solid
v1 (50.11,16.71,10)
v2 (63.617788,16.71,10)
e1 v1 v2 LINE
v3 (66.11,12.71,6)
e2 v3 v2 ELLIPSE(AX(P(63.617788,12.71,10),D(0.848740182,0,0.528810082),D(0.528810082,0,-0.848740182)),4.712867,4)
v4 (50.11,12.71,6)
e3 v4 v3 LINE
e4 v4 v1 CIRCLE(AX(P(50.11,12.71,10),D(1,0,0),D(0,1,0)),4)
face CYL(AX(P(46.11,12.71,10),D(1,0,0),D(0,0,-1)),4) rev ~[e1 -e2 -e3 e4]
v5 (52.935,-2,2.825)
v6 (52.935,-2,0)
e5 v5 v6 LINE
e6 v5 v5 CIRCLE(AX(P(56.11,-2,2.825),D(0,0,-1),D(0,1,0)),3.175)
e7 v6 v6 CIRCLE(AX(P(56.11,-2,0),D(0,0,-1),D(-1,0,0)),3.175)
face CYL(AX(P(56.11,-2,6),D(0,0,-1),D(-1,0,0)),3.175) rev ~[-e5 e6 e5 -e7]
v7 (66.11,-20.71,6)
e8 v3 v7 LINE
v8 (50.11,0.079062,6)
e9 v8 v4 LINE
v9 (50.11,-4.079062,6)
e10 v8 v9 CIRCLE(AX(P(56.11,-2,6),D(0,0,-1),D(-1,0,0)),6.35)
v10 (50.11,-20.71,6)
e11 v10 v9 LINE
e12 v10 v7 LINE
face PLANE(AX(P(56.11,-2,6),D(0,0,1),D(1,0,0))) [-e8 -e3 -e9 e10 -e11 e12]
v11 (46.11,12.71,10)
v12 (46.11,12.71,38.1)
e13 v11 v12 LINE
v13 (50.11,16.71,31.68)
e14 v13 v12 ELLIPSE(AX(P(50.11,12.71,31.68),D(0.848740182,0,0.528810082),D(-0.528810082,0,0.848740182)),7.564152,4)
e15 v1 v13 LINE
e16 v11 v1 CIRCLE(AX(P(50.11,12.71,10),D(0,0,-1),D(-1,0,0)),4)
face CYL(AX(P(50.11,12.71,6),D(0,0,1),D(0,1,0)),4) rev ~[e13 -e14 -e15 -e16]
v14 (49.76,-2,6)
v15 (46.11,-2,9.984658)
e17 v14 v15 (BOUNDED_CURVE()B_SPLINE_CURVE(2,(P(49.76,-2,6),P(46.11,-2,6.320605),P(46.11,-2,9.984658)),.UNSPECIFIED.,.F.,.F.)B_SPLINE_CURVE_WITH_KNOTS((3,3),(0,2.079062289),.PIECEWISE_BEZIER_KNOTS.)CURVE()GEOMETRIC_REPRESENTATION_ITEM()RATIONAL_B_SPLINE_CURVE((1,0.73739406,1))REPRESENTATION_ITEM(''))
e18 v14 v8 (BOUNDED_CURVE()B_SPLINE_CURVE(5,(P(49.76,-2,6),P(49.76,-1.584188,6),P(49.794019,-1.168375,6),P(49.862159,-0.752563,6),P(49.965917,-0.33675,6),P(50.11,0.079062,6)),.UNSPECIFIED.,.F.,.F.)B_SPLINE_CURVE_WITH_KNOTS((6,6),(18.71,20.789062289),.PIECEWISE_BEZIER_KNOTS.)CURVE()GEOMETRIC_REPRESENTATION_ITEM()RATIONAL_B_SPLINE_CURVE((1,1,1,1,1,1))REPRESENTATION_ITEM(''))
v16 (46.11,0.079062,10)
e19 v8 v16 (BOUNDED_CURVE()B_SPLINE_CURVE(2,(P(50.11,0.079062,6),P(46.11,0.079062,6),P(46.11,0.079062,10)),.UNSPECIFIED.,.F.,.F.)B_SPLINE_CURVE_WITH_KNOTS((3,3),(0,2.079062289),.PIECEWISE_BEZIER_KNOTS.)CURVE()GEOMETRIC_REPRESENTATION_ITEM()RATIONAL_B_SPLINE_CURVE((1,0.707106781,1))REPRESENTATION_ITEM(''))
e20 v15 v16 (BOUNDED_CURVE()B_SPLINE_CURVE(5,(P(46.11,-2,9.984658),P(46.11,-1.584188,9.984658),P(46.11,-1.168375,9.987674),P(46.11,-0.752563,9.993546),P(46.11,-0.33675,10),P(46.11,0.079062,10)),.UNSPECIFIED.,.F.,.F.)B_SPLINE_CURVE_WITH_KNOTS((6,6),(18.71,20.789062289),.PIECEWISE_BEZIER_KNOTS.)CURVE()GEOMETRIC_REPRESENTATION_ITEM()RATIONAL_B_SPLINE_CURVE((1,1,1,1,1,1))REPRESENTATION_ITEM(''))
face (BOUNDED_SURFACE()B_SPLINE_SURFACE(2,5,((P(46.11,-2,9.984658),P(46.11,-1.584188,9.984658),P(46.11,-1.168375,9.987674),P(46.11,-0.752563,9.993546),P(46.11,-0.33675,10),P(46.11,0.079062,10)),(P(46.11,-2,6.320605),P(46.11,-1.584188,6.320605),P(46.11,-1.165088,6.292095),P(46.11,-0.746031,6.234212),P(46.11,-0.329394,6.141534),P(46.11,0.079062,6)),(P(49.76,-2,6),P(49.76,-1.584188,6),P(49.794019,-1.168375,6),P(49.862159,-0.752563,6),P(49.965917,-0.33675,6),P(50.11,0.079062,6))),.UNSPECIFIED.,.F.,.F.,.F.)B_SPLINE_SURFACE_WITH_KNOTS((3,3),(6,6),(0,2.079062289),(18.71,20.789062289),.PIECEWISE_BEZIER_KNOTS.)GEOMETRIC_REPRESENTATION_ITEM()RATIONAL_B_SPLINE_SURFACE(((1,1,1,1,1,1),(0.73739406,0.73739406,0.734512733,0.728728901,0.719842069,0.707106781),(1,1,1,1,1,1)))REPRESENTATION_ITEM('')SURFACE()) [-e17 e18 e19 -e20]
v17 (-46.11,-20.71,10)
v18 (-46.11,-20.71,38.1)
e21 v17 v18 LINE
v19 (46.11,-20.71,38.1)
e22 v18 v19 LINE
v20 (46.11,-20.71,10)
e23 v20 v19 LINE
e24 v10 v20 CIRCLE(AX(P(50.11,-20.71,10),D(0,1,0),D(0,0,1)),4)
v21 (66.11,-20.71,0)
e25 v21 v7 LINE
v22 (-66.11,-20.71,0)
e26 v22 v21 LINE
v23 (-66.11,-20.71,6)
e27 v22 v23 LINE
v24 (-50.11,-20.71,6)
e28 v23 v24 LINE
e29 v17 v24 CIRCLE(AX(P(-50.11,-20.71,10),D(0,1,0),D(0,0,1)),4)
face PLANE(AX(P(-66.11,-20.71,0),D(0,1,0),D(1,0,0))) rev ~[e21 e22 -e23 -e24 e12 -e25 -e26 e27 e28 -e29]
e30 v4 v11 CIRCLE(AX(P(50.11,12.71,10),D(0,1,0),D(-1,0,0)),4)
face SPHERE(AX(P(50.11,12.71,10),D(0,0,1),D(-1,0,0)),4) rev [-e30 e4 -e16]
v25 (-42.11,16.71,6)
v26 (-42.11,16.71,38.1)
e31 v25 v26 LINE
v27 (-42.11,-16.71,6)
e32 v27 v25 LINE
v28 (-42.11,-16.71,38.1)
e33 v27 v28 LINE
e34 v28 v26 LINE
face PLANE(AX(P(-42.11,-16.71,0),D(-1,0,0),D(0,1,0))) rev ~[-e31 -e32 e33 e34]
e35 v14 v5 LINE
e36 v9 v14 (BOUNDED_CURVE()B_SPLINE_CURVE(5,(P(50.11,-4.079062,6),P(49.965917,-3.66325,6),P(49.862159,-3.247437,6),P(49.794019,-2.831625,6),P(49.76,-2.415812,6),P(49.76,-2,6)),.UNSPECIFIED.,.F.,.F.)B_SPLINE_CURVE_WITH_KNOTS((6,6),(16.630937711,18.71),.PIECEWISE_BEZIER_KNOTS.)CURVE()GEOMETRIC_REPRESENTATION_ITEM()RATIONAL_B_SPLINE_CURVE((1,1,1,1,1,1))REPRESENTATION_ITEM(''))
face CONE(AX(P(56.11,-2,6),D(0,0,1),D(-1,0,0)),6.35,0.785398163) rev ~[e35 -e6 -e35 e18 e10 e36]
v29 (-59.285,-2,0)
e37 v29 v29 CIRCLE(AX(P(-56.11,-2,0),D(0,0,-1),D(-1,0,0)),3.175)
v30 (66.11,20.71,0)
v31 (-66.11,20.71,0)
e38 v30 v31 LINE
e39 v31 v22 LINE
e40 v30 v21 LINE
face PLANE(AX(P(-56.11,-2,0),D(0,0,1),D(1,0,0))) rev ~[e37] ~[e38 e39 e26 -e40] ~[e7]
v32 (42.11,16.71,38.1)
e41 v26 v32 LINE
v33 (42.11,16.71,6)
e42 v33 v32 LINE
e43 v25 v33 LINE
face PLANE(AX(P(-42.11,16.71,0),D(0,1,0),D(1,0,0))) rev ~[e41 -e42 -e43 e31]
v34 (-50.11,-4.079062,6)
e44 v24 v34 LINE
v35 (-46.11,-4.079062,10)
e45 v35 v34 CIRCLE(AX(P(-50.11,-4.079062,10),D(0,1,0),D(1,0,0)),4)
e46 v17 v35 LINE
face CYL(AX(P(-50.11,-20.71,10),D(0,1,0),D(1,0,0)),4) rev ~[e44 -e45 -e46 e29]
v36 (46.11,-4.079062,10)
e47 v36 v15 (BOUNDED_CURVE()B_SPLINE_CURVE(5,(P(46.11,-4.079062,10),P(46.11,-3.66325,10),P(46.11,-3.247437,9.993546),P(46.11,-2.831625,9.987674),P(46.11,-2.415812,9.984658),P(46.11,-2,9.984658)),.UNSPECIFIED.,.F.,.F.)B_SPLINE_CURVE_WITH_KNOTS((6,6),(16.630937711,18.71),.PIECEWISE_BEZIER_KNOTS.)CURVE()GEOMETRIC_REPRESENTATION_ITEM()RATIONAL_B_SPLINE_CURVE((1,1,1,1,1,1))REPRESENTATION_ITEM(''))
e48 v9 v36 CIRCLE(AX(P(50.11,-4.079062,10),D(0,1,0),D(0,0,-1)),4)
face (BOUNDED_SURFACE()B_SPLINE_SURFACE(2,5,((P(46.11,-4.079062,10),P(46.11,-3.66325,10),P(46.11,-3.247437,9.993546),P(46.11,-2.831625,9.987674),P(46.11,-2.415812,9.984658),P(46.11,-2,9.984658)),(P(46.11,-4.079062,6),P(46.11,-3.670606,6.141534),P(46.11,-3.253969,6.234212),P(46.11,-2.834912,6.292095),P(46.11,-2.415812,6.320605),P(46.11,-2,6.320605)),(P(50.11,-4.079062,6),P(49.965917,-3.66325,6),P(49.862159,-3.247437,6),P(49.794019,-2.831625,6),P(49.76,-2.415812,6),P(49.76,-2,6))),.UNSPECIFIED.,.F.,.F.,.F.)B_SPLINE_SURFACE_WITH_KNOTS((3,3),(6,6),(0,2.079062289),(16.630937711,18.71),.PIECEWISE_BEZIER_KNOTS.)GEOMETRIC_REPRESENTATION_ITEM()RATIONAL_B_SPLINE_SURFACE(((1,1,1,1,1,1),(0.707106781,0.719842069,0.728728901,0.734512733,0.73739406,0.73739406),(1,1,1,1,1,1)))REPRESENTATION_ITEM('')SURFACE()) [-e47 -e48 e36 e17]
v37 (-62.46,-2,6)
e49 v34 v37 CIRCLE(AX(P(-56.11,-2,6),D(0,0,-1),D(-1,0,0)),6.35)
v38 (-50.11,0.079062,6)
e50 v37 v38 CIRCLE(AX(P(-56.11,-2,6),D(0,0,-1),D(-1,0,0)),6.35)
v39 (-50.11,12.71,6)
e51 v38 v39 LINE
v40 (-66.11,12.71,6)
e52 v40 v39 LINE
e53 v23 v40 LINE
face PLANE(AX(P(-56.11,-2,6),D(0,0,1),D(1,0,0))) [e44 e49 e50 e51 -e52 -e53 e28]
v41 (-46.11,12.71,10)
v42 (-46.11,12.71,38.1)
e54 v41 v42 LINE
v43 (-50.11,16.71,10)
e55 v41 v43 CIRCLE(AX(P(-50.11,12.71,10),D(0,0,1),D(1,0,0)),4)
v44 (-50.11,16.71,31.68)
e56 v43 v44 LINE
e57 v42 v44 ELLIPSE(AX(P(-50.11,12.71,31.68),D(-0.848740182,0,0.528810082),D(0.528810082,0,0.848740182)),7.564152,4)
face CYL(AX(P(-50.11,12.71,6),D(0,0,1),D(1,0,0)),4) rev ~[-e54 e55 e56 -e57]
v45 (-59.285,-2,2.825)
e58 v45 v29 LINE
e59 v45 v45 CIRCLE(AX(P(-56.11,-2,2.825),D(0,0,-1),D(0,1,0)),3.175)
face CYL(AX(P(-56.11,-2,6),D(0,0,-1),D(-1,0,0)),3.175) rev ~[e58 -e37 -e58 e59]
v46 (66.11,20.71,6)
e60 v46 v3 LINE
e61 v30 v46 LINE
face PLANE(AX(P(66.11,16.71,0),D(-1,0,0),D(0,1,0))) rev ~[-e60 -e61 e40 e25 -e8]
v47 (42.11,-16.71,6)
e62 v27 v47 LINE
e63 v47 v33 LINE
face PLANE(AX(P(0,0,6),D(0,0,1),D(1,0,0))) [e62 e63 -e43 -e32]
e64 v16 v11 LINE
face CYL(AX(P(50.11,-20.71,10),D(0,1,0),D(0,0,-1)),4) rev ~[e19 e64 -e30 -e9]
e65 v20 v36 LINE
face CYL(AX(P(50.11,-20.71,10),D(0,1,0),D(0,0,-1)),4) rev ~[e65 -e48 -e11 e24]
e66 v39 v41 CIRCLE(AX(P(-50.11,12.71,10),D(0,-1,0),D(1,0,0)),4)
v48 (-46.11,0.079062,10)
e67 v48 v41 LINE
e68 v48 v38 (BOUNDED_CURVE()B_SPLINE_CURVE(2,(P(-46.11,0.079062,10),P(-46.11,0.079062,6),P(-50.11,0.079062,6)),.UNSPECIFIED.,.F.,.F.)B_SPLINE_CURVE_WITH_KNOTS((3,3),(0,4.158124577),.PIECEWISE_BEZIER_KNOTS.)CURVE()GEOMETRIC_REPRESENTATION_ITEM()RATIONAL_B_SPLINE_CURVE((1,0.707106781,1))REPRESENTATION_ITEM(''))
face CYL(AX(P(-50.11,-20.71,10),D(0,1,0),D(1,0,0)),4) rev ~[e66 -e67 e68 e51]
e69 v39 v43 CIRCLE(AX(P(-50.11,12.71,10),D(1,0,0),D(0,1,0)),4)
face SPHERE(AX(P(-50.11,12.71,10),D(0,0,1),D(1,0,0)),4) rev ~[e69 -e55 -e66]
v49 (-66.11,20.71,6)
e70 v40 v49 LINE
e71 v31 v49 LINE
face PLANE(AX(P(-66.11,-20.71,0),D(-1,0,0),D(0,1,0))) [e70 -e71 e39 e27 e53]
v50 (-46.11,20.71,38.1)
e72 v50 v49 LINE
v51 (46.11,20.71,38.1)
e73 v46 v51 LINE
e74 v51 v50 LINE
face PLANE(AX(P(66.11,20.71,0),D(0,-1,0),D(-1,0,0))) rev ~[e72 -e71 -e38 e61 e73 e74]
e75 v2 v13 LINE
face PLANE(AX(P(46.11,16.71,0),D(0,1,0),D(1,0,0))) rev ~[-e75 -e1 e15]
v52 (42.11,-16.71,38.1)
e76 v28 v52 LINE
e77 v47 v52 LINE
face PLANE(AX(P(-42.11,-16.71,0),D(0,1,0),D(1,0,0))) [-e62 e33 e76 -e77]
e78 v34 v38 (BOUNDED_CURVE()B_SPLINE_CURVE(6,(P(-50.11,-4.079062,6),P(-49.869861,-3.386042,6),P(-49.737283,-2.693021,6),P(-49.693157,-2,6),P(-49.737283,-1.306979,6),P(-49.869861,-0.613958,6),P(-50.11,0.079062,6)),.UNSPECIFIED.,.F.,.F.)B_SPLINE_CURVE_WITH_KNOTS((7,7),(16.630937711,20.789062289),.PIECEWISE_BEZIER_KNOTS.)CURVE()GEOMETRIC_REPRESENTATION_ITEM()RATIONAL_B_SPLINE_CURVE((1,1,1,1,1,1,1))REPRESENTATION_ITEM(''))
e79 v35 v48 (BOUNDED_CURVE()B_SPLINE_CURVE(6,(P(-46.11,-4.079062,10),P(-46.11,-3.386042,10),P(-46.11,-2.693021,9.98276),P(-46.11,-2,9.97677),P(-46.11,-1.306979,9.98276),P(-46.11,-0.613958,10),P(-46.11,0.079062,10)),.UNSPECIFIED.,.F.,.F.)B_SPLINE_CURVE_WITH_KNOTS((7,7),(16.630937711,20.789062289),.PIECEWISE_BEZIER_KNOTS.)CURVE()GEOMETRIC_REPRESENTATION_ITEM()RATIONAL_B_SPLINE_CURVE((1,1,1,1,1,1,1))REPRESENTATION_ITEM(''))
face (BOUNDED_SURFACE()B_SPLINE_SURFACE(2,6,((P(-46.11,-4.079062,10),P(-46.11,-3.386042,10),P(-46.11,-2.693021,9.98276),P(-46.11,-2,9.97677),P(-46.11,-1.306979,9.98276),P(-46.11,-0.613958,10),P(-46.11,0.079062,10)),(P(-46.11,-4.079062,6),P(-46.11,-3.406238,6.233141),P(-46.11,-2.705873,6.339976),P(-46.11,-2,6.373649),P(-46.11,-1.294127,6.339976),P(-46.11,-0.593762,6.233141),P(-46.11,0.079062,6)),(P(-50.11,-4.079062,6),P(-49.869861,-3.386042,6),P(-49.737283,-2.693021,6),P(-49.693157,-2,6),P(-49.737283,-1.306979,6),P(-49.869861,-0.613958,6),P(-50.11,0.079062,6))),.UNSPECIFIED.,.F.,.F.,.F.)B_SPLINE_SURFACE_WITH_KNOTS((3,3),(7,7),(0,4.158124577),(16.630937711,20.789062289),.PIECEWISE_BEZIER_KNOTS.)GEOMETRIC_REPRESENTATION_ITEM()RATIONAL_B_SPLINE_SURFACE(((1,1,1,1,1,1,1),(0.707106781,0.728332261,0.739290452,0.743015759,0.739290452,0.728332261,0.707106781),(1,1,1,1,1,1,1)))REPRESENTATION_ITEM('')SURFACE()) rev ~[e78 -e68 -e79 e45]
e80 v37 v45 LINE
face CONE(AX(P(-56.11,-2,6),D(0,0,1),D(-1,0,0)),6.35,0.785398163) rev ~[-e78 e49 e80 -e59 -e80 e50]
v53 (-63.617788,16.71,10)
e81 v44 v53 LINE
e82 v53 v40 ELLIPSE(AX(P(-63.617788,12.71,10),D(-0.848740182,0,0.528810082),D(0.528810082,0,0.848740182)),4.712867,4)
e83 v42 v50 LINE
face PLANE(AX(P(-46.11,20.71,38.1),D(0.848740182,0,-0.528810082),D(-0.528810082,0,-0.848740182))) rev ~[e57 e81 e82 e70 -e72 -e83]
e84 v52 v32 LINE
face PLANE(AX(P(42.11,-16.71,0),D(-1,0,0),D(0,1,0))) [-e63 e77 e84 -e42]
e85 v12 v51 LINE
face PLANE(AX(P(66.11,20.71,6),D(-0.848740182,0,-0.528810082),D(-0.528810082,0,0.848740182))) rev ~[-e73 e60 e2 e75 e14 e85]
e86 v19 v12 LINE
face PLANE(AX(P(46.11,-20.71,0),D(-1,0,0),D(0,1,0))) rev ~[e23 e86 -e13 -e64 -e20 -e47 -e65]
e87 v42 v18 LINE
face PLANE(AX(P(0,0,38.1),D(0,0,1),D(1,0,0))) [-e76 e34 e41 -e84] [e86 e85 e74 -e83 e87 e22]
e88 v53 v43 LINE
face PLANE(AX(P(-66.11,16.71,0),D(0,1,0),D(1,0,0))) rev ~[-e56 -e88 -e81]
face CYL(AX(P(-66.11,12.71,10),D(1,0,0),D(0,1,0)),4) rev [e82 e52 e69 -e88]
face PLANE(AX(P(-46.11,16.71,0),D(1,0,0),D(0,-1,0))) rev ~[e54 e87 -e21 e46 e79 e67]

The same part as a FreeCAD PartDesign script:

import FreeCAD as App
import Part
import Sketcher


def edges_at(feature, points):
    """Names of the edges that pass closest to the given points."""
    edges = feature.Shape.Edges
    near = lambda p: min(range(len(edges)), key=lambda i: edges[i].distToShape(Part.Vertex(*p))[0])
    return sorted({f"Edge{near(p) + 1}" for p in points})

doc = App.newDocument("Part")
body = doc.addObject("PartDesign::Body", "Body")

sketch1 = body.newObject("Sketcher::SketchObject", "Sketch")
sketch1.AttachmentSupport = (doc.getObject("XY_Plane"), [""])
sketch1.MapMode = "FlatFace"
sketch1.addGeometry([
    Part.LineSegment(App.Vector(-46.1, 16.7, 0), App.Vector(-46.1, -20.7, 0)),
    Part.LineSegment(App.Vector(-46.1, -20.7, 0), App.Vector(46.1, -20.7, 0)),
    Part.LineSegment(App.Vector(46.1, -20.7, 0), App.Vector(46.1, 16.7, 0)),
    Part.LineSegment(App.Vector(46.1, 16.7, 0), App.Vector(66.1, 16.7, 0)),
    Part.LineSegment(App.Vector(66.1, 16.7, 0), App.Vector(66.1, 20.7, 0)),
    Part.LineSegment(App.Vector(66.1, 20.7, 0), App.Vector(-66.1, 20.7, 0)),
    Part.LineSegment(App.Vector(-66.1, 20.7, 0), App.Vector(-66.1, 16.7, 0)),
    Part.LineSegment(App.Vector(-66.1, 16.7, 0), App.Vector(-46.1, 16.7, 0)),
    Part.LineSegment(App.Vector(42.1, -16.7, 0), App.Vector(-42.1, -16.7, 0)),
    Part.LineSegment(App.Vector(-42.1, -16.7, 0), App.Vector(-42.1, 16.7, 0)),
    Part.LineSegment(App.Vector(-42.1, 16.7, 0), App.Vector(42.1, 16.7, 0)),
    Part.LineSegment(App.Vector(42.1, 16.7, 0), App.Vector(42.1, -16.7, 0)),
], False)
sketch1.addConstraint([
    Sketcher.Constraint("Coincident", 0, 2, 1, 1),
    Sketcher.Constraint("Coincident", 1, 2, 2, 1),
    Sketcher.Constraint("Coincident", 2, 2, 3, 1),
    Sketcher.Constraint("Coincident", 3, 2, 4, 1),
    Sketcher.Constraint("Coincident", 4, 2, 5, 1),
    Sketcher.Constraint("Coincident", 5, 2, 6, 1),
    Sketcher.Constraint("Coincident", 6, 2, 7, 1),
    Sketcher.Constraint("Coincident", 7, 2, 0, 1),
    Sketcher.Constraint("Coincident", 8, 2, 9, 1),
    Sketcher.Constraint("Coincident", 9, 2, 10, 1),
    Sketcher.Constraint("Coincident", 10, 2, 11, 1),
    Sketcher.Constraint("Coincident", 11, 2, 8, 1),
    Sketcher.Constraint("Vertical", 0),
    Sketcher.Constraint("Horizontal", 1),
    Sketcher.Constraint("Vertical", 2),
    Sketcher.Constraint("Horizontal", 3),
    Sketcher.Constraint("Vertical", 4),
    Sketcher.Constraint("Horizontal", 5),
    Sketcher.Constraint("Vertical", 6),
    Sketcher.Constraint("Horizontal", 7),
    Sketcher.Constraint("Horizontal", 8),
    Sketcher.Constraint("Vertical", 9),
    Sketcher.Constraint("Horizontal", 10),
    Sketcher.Constraint("Vertical", 11),
    Sketcher.Constraint("Symmetric", 8, 2, 10, 2, -1, 1),
    Sketcher.Constraint("Symmetric", 3, 2, 6, 2, -2),
    Sketcher.Constraint("Horizontal", 7, 2, 9, 2),
    Sketcher.Constraint("Equal", 3, 7),
    Sketcher.Constraint("DistanceX", 3, 1, 3, 2, 20.0),
    Sketcher.Constraint("DistanceY", 4, 1, 4, 2, 4.0),
    Sketcher.Constraint("DistanceX", 0, 2, 8, 2, 4.0),
    Sketcher.Constraint("DistanceY", 0, 2, 8, 2, 4.0),
    Sketcher.Constraint("DistanceX", 1, 1, 1, 2, 92.22),
    Sketcher.Constraint("DistanceY", 0, 2, 0, 1, 37.42),
])
pad1 = body.newObject("PartDesign::Pad", "Pad")
pad1.Profile = sketch1
pad1.Length = 38.1

sketch2 = body.newObject("Sketcher::SketchObject", "Sketch001")
sketch2.AttachmentSupport = (doc.getObject("XY_Plane"), [""])
sketch2.MapMode = "FlatFace"
sketch2.addGeometry([
    Part.LineSegment(App.Vector(-66, 17, 0), App.Vector(-66, -21, 0)),
    Part.LineSegment(App.Vector(-66, -21, 0), App.Vector(-46, -21, 0)),
    Part.LineSegment(App.Vector(-46, -21, 0), App.Vector(-46, 17, 0)),
    Part.LineSegment(App.Vector(-46, 17, 0), App.Vector(-66, 17, 0)),
    Part.LineSegment(App.Vector(46, 17, 0), App.Vector(46, -21, 0)),
    Part.LineSegment(App.Vector(46, -21, 0), App.Vector(66, -21, 0)),
    Part.LineSegment(App.Vector(66, -21, 0), App.Vector(66, 17, 0)),
    Part.LineSegment(App.Vector(66, 17, 0), App.Vector(46, 17, 0)),
    Part.LineSegment(App.Vector(-42, 17, 0), App.Vector(-42, -17, 0)),
    Part.LineSegment(App.Vector(-42, -17, 0), App.Vector(42, -17, 0)),
    Part.LineSegment(App.Vector(42, -17, 0), App.Vector(42, 17, 0)),
    Part.LineSegment(App.Vector(42, 17, 0), App.Vector(-42, 17, 0)),
], False)
sketch2.addConstraint([
    Sketcher.Constraint("Coincident", 0, 2, 1, 1),
    Sketcher.Constraint("Coincident", 1, 2, 2, 1),
    Sketcher.Constraint("Coincident", 2, 2, 3, 1),
    Sketcher.Constraint("Coincident", 3, 2, 0, 1),
    Sketcher.Constraint("Coincident", 4, 2, 5, 1),
    Sketcher.Constraint("Coincident", 5, 2, 6, 1),
    Sketcher.Constraint("Coincident", 6, 2, 7, 1),
    Sketcher.Constraint("Coincident", 7, 2, 4, 1),
    Sketcher.Constraint("Coincident", 8, 2, 9, 1),
    Sketcher.Constraint("Coincident", 9, 2, 10, 1),
    Sketcher.Constraint("Coincident", 10, 2, 11, 1),
    Sketcher.Constraint("Coincident", 11, 2, 8, 1),
    Sketcher.Constraint("Vertical", 0),
    Sketcher.Constraint("Horizontal", 1),
    Sketcher.Constraint("Vertical", 2),
    Sketcher.Constraint("Horizontal", 3),
    Sketcher.Constraint("Vertical", 4),
    Sketcher.Constraint("Horizontal", 5),
    Sketcher.Constraint("Vertical", 6),
    Sketcher.Constraint("Horizontal", 7),
    Sketcher.Constraint("Vertical", 8),
    Sketcher.Constraint("Horizontal", 9),
    Sketcher.Constraint("Vertical", 10),
    Sketcher.Constraint("Horizontal", 11),
    Sketcher.Constraint("Symmetric", 8, 2, 10, 2, -1, 1),
    Sketcher.Constraint("Symmetric", 1, 2, 4, 2, -2),
    Sketcher.Constraint("Symmetric", 3, 2, 6, 2, -2),
    Sketcher.Constraint("Horizontal", 7, 2, 10, 2),
    Sketcher.Constraint("DistanceX", 1, 1, 1, 2, 20.0),
    Sketcher.Constraint("DistanceX", 1, 2, 8, 2, 4.0),
    Sketcher.Constraint("DistanceY", 1, 2, 8, 2, 4.0),
    Sketcher.Constraint("DistanceX", 9, 1, 9, 2, 84.22),
    Sketcher.Constraint("DistanceY", 0, 2, 0, 1, 37.42),
])
pad2 = body.newObject("PartDesign::Pad", "Pad001")
pad2.Profile = sketch2
pad2.Length = 6

sketch3 = body.newObject("Sketcher::SketchObject", "Sketch002")
sketch3.AttachmentSupport = (doc.getObject("XY_Plane"), [""])
sketch3.MapMode = "FlatFace"
sketch3.AttachmentOffset = App.Placement(App.Vector(0, 0, 6), App.Rotation())
sketch3.addGeometry([
    Part.Circle(App.Vector(-56.1, -2, 0), App.Vector(0, 0, 1), 3.2),
    Part.Circle(App.Vector(56.1, -2, 0), App.Vector(0, 0, 1), 3.2),
], False)
sketch3.addConstraint([
    Sketcher.Constraint("Equal", 0, 1),
    Sketcher.Constraint("Symmetric", 0, 3, 1, 3, -2),
    Sketcher.Constraint("Diameter", 0, 6.35),
    Sketcher.Constraint("DistanceY", 0, 3, -1, 1, 2.0),
    Sketcher.Constraint("DistanceX", 0, 3, -1, 1, 56.11),
])
doc.recompute()
hole = body.newObject("PartDesign::Hole", "Hole")
hole.Profile = sketch3
hole.ThreadType = "None"
hole.Diameter = 6.35
hole.DepthType = "ThroughAll"
hole.HoleCutType = "Countersink"
hole.HoleCutDiameter = 12.7
hole.HoleCutCountersinkAngle = 90

sketch4 = body.newObject("Sketcher::SketchObject", "Sketch003")
sketch4.AttachmentSupport = (doc.getObject("XZ_Plane"), [""])
sketch4.MapMode = "FlatFace"
sketch4.AttachmentOffset = App.Placement(App.Vector(0, 0, -20.71), App.Rotation())
sketch4.addGeometry([
    Part.LineSegment(App.Vector(66, 6, 0), App.Vector(46, 38, 0)),
    Part.LineSegment(App.Vector(46, 38, 0), App.Vector(66, 38, 0)),
    Part.LineSegment(App.Vector(66, 38, 0), App.Vector(66, 6, 0)),
    Part.LineSegment(App.Vector(-66, 38, 0), App.Vector(-46, 38, 0)),
    Part.LineSegment(App.Vector(-46, 38, 0), App.Vector(-66, 6, 0)),
    Part.LineSegment(App.Vector(-66, 6, 0), App.Vector(-66, 38, 0)),
], False)
sketch4.addConstraint([
    Sketcher.Constraint("Coincident", 0, 2, 1, 1),
    Sketcher.Constraint("Coincident", 1, 2, 2, 1),
    Sketcher.Constraint("Coincident", 2, 2, 0, 1),
    Sketcher.Constraint("Coincident", 3, 2, 4, 1),
    Sketcher.Constraint("Coincident", 4, 2, 5, 1),
    Sketcher.Constraint("Coincident", 5, 2, 3, 1),
    Sketcher.Constraint("Horizontal", 1),
    Sketcher.Constraint("Vertical", 2),
    Sketcher.Constraint("Horizontal", 3),
    Sketcher.Constraint("Vertical", 5),
    Sketcher.Constraint("Symmetric", 0, 2, 3, 2, -2),
    Sketcher.Constraint("Symmetric", 2, 2, 4, 2, -2),
    Sketcher.Constraint("DistanceX", 1, 1, 1, 2, 20.0),
    Sketcher.Constraint("DistanceY", 2, 2, 2, 1, 32.1),
    Sketcher.Constraint("DistanceY", -1, 1, 2, 2, 6.0),
    Sketcher.Constraint("DistanceX", -1, 1, 0, 2, 46.11),
])
pocket1 = body.newObject("PartDesign::Pocket", "Pocket")
pocket1.Profile = sketch4
pocket1.Length = 25
pocket1.Reversed = True
doc.recompute()

fillet = body.newObject("PartDesign::Fillet", "Fillet")
fillet.Base = (pocket1, edges_at(pocket1, [
    (46.11, 16.71, 22.05),
    (-46.11, 16.71, 22.05),
    (-46.11, -2, 6),
    (-56.11, 16.71, 6),
    (46.11, -2, 6),
    (56.11, 16.71, 6),
]))
fillet.Radius = 4

doc.recompute()
